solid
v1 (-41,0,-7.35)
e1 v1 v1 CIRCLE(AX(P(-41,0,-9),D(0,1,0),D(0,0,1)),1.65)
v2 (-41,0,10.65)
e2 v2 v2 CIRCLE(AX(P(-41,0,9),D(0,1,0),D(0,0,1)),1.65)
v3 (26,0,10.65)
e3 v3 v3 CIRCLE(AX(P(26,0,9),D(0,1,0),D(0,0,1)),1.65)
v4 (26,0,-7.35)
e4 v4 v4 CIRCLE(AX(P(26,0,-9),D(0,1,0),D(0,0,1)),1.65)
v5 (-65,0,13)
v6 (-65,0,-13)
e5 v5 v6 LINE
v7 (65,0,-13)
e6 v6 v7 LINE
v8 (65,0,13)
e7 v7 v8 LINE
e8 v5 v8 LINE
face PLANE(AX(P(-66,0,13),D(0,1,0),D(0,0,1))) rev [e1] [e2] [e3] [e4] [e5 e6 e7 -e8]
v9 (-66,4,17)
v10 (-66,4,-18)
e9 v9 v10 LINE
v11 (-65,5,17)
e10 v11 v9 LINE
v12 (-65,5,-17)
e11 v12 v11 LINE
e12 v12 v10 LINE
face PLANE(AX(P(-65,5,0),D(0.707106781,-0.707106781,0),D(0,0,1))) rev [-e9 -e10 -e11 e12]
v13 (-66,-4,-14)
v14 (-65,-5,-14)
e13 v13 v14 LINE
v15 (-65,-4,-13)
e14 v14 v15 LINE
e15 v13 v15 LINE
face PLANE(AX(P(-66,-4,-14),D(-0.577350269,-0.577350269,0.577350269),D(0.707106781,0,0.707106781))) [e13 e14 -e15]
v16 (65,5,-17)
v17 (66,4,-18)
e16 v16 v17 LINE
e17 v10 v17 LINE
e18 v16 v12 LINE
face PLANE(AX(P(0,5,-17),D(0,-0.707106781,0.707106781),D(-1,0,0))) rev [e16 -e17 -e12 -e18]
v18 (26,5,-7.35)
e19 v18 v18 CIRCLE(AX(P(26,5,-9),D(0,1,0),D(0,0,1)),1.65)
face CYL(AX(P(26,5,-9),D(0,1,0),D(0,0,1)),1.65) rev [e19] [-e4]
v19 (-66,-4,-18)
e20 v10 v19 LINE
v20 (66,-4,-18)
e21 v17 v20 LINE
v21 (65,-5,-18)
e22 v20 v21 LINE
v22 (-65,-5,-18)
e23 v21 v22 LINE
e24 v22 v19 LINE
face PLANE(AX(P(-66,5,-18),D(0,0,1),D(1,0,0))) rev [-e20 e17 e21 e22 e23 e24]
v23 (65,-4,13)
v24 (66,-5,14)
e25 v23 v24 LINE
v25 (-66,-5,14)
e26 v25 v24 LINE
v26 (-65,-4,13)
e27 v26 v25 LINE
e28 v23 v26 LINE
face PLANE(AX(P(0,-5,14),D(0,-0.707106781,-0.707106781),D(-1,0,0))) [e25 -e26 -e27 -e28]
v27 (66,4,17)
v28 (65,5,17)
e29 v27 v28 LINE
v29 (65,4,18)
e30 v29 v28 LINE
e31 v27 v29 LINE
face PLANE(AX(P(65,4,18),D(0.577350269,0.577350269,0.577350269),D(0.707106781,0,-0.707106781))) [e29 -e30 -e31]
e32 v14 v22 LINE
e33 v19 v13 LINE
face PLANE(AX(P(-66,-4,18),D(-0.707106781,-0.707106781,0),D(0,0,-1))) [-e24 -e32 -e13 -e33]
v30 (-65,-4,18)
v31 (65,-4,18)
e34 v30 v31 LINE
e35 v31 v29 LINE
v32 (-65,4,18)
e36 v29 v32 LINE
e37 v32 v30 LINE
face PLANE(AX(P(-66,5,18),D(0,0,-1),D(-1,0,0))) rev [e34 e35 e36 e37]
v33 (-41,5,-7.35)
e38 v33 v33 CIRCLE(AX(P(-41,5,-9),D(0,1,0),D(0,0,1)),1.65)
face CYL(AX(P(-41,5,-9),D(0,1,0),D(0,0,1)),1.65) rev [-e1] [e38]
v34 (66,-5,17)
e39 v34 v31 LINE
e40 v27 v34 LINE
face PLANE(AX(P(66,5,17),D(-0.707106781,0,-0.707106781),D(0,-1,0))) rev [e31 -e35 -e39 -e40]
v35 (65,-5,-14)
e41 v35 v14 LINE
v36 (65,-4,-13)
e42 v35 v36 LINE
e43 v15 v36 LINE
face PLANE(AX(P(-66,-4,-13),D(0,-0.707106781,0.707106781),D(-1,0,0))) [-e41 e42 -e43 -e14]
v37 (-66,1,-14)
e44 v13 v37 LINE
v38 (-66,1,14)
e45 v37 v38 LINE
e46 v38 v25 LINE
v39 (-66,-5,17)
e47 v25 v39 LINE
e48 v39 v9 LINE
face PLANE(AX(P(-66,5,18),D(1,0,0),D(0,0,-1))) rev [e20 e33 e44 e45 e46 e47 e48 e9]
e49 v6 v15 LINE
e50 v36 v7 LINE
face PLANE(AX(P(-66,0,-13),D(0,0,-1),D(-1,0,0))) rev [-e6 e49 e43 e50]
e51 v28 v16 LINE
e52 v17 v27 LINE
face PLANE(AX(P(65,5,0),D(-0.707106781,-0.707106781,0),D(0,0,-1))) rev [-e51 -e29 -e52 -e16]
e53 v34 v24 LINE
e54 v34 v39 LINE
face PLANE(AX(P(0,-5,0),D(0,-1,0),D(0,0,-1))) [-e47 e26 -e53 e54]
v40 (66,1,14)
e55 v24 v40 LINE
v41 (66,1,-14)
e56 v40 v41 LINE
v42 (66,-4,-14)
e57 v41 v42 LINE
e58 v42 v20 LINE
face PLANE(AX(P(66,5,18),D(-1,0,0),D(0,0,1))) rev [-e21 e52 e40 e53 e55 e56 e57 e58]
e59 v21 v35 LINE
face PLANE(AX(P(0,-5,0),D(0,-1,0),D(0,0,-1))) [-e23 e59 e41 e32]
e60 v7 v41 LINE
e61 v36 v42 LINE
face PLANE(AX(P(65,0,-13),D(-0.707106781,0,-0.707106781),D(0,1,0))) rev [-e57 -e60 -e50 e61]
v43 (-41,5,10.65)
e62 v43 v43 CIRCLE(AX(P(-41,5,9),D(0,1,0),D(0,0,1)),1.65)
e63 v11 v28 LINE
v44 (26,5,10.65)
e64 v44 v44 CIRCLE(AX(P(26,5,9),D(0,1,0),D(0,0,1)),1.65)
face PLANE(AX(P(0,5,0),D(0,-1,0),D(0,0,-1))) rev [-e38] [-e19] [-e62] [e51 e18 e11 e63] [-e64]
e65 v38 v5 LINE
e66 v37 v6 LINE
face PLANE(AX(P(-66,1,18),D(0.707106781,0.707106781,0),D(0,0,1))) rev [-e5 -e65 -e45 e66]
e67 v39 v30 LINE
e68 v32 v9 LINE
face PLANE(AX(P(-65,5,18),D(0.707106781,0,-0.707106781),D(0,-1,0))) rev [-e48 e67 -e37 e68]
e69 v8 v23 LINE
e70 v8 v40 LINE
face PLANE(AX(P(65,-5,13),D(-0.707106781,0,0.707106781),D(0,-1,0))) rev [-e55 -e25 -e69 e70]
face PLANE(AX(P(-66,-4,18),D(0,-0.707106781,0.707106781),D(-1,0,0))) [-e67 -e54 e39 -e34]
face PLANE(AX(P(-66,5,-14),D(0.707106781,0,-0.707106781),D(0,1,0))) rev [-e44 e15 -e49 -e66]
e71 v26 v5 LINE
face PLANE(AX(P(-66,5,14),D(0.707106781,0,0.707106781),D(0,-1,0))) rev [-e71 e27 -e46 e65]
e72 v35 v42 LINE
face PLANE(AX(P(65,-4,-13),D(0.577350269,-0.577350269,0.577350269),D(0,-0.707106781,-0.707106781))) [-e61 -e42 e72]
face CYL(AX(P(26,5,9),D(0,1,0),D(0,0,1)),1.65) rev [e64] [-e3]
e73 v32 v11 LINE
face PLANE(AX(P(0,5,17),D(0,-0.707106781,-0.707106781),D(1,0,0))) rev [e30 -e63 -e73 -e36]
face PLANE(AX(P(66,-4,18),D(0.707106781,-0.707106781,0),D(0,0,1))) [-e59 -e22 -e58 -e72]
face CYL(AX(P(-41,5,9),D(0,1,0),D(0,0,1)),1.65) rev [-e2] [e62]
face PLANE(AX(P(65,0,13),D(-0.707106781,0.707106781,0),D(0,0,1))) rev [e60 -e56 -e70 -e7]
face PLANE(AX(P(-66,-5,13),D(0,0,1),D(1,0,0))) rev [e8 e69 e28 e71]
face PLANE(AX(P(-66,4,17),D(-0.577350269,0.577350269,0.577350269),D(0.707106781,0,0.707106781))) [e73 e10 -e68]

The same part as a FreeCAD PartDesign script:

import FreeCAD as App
import Part
import Sketcher

V = App.Vector


def edges_at(feature, points):
    """Names of the edges that pass closest to the given points."""
    edges = feature.Shape.Edges
    near = lambda p: min(range(len(edges)), key=lambda i: edges[i].distToShape(Part.Vertex(*p))[0])
    return sorted({f"Edge{near(p) + 1}" for p in points})

doc = App.newDocument("Part")
body = doc.addObject("PartDesign::Body", "Body")

sketch1 = body.newObject("Sketcher::SketchObject", "Sketch")
sketch1.AttachmentSupport = (doc.getObject("XZ_Plane"), [""])
sketch1.MapMode = "FlatFace"
sketch1.addGeometry(Part.LineSegment(V(-66, -18, 0), V(-66, 18, 0)), False)
sketch1.addGeometry(Part.LineSegment(V(-66, 18, 0), V(66, 18, 0)), False)
sketch1.addGeometry(Part.LineSegment(V(66, 18, 0), V(66, -18, 0)), False)
sketch1.addGeometry(Part.LineSegment(V(66, -18, 0), V(-66, -18, 0)), False)
sketch1.addConstraint(Sketcher.Constraint("Coincident", 0, 2, 1, 1))
sketch1.addConstraint(Sketcher.Constraint("Coincident", 1, 2, 2, 1))
sketch1.addConstraint(Sketcher.Constraint("Coincident", 2, 2, 3, 1))
sketch1.addConstraint(Sketcher.Constraint("Coincident", 3, 2, 0, 1))
sketch1.addConstraint(Sketcher.Constraint("Vertical", 0))
sketch1.addConstraint(Sketcher.Constraint("Horizontal", 1))
sketch1.addConstraint(Sketcher.Constraint("Vertical", 2))
sketch1.addConstraint(Sketcher.Constraint("Horizontal", 3))
sketch1.addConstraint(Sketcher.Constraint("Symmetric", 0, 2, 2, 2, -1, 1))
sketch1.addConstraint(Sketcher.Constraint("DistanceX", 1, 1, 1, 2, 132.0))
sketch1.addConstraint(Sketcher.Constraint("DistanceY", 0, 1, 0, 2, 36.0))
pad1 = body.newObject("PartDesign::Pad", "Pad")
pad1.Profile = sketch1
pad1.Length = 10
pad1.Midplane = True

sketch2 = body.newObject("Sketcher::SketchObject", "Sketch001")
sketch2.AttachmentSupport = (doc.getObject("YZ_Plane"), [""])
sketch2.MapMode = "FlatFace"
sketch2.addGeometry(Part.LineSegment(V(0, 13, 0), V(-5, 13, 0)), False)
sketch2.addGeometry(Part.LineSegment(V(-5, 13, 0), V(-5, -13, 0)), False)
sketch2.addGeometry(Part.LineSegment(V(-5, -13, 0), V(0, -13, 0)), False)
sketch2.addGeometry(Part.LineSegment(V(0, -13, 0), V(0, 13, 0)), False)
sketch2.addConstraint(Sketcher.Constraint("Coincident", 0, 2, 1, 1))
sketch2.addConstraint(Sketcher.Constraint("Coincident", 1, 2, 2, 1))
sketch2.addConstraint(Sketcher.Constraint("Coincident", 2, 2, 3, 1))
sketch2.addConstraint(Sketcher.Constraint("Coincident", 3, 2, 0, 1))
sketch2.addConstraint(Sketcher.Constraint("Horizontal", 0))
sketch2.addConstraint(Sketcher.Constraint("Vertical", 1))
sketch2.addConstraint(Sketcher.Constraint("Horizontal", 2))
sketch2.addConstraint(Sketcher.Constraint("Vertical", 3))
sketch2.addConstraint(Sketcher.Constraint("Symmetric", 2, 2, 3, 2, -1, 1))
sketch2.addConstraint(Sketcher.Constraint("DistanceX", 0, 2, 0, 1, 5.0))
sketch2.addConstraint(Sketcher.Constraint("DistanceY", 1, 2, 1, 1, 26.0))
pocket1 = body.newObject("PartDesign::Pocket", "Pocket")
pocket1.Profile = sketch2
pocket1.Type = "ThroughAll"
pocket1.Midplane = True
doc.recompute()

chamfer = body.newObject("PartDesign::Chamfer", "Chamfer")
chamfer.Base = (pocket1, edges_at(pocket1, [
    (-66, -2.5, 13),
    (-66, -5, -15.5),
    (-66, 0, 0),
    (-66, -2.5, -13),
    (0, -5, 13),
    (66, -5, -15.5),
    (66, -2.5, -13),
    (66, 0, 0),
    (66, -2.5, 13),
    (0, -5, 18),
    (66, 0, 18),
    (66, 5, 0),
    (0, 5, -18),
    (-66, 5, 0),
    (0, 5, 18),
    (-66, 0, 18),
    (0, -5, -13),
]))
chamfer.Size = 1

sketch3 = body.newObject("Sketcher::SketchObject", "Sketch002")
sketch3.AttachmentSupport = (doc.getObject("XZ_Plane"), [""])
sketch3.MapMode = "FlatFace"
sketch3.AttachmentOffset = App.Placement(V(0, 0, -5), App.Rotation())
sketch3.addGeometry(Part.Circle(V(-41, -9, 0), V(0, 0, 1), 1.6), False)
sketch3.addGeometry(Part.Circle(V(26, -9, 0), V(0, 0, 1), 1.6), False)
sketch3.addGeometry(Part.Circle(V(-41, 9, 0), V(0, 0, 1), 1.6), False)
sketch3.addGeometry(Part.Circle(V(26, 9, 0), V(0, 0, 1), 1.6), False)
sketch3.addConstraint(Sketcher.Constraint("Equal", 0, 1))
sketch3.addConstraint(Sketcher.Constraint("Equal", 1, 2))
sketch3.addConstraint(Sketcher.Constraint("Equal", 2, 3))
sketch3.addConstraint(Sketcher.Constraint("Symmetric", 0, 3, 2, 3, -1))
sketch3.addConstraint(Sketcher.Constraint("Symmetric", 1, 3, 3, 3, -1))
sketch3.addConstraint(Sketcher.Constraint("Horizontal", 0, 3, 1, 3))
sketch3.addConstraint(Sketcher.Constraint("Diameter", 0, 3.3))
sketch3.addConstraint(Sketcher.Constraint("DistanceX", 0, 3, -1, 1, 41.0))
sketch3.addConstraint(Sketcher.Constraint("DistanceY", 0, 3, -1, 1, 9.0))
sketch3.addConstraint(Sketcher.Constraint("DistanceX", -1, 1, 1, 3, 26.0))
doc.recompute()
hole = body.newObject("PartDesign::Hole", "Hole")
hole.Profile = sketch3
hole.ThreadType = "None"
hole.Diameter = 3.3
hole.DepthType = "Dimension"
hole.Depth = 14
hole.DrillPoint = "Angled"
hole.DrillPointAngle = 118
hole.Reversed = True

doc.recompute()
